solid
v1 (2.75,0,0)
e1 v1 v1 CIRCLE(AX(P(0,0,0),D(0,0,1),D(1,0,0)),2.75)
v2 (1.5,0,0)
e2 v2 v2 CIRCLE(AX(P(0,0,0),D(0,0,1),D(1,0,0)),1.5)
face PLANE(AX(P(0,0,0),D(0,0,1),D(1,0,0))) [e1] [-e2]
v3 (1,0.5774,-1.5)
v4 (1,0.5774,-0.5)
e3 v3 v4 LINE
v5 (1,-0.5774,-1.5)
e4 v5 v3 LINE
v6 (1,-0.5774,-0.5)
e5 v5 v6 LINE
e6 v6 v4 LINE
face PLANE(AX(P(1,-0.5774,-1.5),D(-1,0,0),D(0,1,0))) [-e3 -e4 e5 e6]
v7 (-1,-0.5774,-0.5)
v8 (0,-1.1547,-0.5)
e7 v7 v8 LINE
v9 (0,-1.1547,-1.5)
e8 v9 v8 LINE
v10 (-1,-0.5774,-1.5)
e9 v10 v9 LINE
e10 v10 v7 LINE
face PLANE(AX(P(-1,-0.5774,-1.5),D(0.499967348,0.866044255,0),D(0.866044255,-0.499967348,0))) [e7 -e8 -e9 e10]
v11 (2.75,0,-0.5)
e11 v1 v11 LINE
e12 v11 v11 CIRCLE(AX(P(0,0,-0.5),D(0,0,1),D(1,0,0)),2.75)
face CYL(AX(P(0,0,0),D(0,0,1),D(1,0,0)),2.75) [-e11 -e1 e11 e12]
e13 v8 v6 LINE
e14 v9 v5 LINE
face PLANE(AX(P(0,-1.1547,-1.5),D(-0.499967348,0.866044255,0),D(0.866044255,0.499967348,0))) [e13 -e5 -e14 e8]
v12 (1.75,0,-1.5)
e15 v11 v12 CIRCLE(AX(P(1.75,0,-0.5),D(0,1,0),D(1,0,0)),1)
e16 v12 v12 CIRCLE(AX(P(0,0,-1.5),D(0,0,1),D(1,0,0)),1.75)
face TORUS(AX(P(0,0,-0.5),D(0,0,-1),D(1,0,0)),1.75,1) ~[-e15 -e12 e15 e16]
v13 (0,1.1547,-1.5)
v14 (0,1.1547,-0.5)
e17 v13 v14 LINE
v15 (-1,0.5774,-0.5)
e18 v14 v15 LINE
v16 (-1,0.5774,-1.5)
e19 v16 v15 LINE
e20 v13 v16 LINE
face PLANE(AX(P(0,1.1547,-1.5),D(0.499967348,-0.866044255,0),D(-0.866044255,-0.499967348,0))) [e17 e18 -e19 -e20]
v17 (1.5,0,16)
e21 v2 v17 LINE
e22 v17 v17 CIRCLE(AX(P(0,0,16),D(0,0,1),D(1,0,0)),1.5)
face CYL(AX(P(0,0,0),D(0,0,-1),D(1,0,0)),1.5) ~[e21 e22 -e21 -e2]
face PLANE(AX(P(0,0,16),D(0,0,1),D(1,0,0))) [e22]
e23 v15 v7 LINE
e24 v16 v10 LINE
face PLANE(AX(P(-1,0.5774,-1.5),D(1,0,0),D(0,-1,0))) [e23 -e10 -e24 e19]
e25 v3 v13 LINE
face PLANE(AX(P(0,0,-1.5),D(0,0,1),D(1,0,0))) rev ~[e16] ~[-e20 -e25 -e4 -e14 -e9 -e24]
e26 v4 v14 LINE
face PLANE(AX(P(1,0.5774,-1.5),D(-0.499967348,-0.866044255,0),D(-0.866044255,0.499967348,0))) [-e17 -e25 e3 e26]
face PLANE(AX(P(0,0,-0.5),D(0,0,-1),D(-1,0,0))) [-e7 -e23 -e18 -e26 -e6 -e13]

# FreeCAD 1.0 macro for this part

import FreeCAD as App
import Part
import Sketcher

V = App.Vector


def edges_at(feature, points):
    """Names of the edges that pass closest to the given points."""
    edges = feature.Shape.Edges
    near = lambda p: min(range(len(edges)), key=lambda i: edges[i].distToShape(Part.Vertex(*p))[0])
    return sorted({f"Edge{near(p) + 1}" for p in points})


def add_polygon(sketch, points):
    """Adds a closed chain of lines whose ends are joined by coincident constraints."""
    first, n = sketch.GeometryCount, len(points)
    for a, b in zip(points, points[1:] + points[:1]):
        sketch.addGeometry(Part.LineSegment(App.Vector(*a, 0), App.Vector(*b, 0)), False)
    for i in range(n):
        sketch.addConstraint(Sketcher.Constraint("Coincident", first + i, 2, first + (i + 1) % n, 1))

doc = App.newDocument("Part")
params = doc.addObject("Spreadsheet::Sheet", "Params")
for row, (alias, value) in enumerate([
    ("sketch1_diameter", "3 mm"),
    ("pad1_length", "16 mm"),
    ("sketch2_diameter", "5.5 mm"),
    ("pad2_length", "1.5 mm"),
    ("pocket1_length", "1 mm"),
    ("fillet_radius", "1 mm"),
], start=1):
    params.set(f"A{row}", alias)
    params.set(f"B{row}", "=" + value)
    params.setAlias(f"B{row}", alias)

body = doc.addObject("PartDesign::Body", "Body")

# Sketch on XY plane
sketch1 = doc.addObject("Sketcher::SketchObject", "Sketch")
body.addObject(sketch1)
sketch1.AttachmentSupport = (doc.XY_Plane, [""])
sketch1.MapMode = "FlatFace"
sketch1.addGeometry(Part.Circle(V(0, 0, 0), V(0, 0, 1), 1.5), False)
sketch1.addConstraint(Sketcher.Constraint("Coincident", 0, 3, -1, 1))
sketch1.addConstraint(Sketcher.Constraint("Diameter", 0, 3.0))
sketch1.setExpression("Constraints[1]", "Params.sketch1_diameter")
pad1 = doc.addObject("PartDesign::Pad", "Pad")
body.addObject(pad1)
pad1.Profile = sketch1
pad1.setExpression("Length", "Params.pad1_length")

# Sketch on XY plane
sketch2 = doc.addObject("Sketcher::SketchObject", "Sketch001")
body.addObject(sketch2)
sketch2.AttachmentSupport = (doc.XY_Plane, [""])
sketch2.MapMode = "FlatFace"
sketch2.addGeometry(Part.Circle(V(0, 0, 0), V(0, 0, 1), 2.75), False)
sketch2.addConstraint(Sketcher.Constraint("Coincident", 0, 3, -1, 1))
sketch2.addConstraint(Sketcher.Constraint("Diameter", 0, 5.5))
sketch2.setExpression("Constraints[1]", "Params.sketch2_diameter")
pad2 = doc.addObject("PartDesign::Pad", "Pad001")
body.addObject(pad2)
pad2.Profile = sketch2
pad2.setExpression("Length", "Params.pad2_length")
pad2.Reversed = True

# Sketch on XY plane
sketch3 = doc.addObject("Sketcher::SketchObject", "Sketch002")
body.addObject(sketch3)
sketch3.AttachmentSupport = (doc.XY_Plane, [""])
sketch3.MapMode = "FlatFace"
sketch3.AttachmentOffset = App.Placement(V(0, 0, -1.5), App.Rotation())
add_polygon(sketch3, [(-1, 0.5774), (0, 1.1547), (1, 0.5774), (1, -0.5774), (0, -1.1547), (-1, -0.5774)])  # lines 0-5
sketch3.addConstraint(Sketcher.Constraint("Vertical", 2))
sketch3.addConstraint(Sketcher.Constraint("Vertical", 5))
sketch3.addConstraint(Sketcher.Constraint("Symmetric", 0, 2, 3, 2, -1, 1))
sketch3.addConstraint(Sketcher.Constraint("Symmetric", 1, 2, 4, 2, -1, 1))
sketch3.addConstraint(Sketcher.Constraint("PointOnObject", 0, 2, -2))
sketch3.addConstraint(Sketcher.Constraint("Parallel", 0, 3))
sketch3.addConstraint(Sketcher.Constraint("Horizontal", 2, 2, 4, 2))
sketch3.addConstraint(Sketcher.Constraint("DistanceX", 4, 2, 2, 2, 2.0))
sketch3.addConstraint(Sketcher.Constraint("DistanceY", 2, 2, 2, 1, 1.1548))
sketch3.addConstraint(Sketcher.Constraint("DistanceY", 2, 2, 0, 2, 1.732))
pocket1 = doc.addObject("PartDesign::Pocket", "Pocket")
body.addObject(pocket1)
pocket1.Profile = sketch3
pocket1.setExpression("Length", "Params.pocket1_length")
pocket1.Reversed = True
doc.recompute()

fillet = doc.addObject("PartDesign::Fillet", "Fillet")
body.addObject(fillet)
fillet.Base = (pocket1, edges_at(pocket1, [(-2.75, 0, -1.5)]))
fillet.setExpression("Radius", "Params.fillet_radius")

doc.recompute()
